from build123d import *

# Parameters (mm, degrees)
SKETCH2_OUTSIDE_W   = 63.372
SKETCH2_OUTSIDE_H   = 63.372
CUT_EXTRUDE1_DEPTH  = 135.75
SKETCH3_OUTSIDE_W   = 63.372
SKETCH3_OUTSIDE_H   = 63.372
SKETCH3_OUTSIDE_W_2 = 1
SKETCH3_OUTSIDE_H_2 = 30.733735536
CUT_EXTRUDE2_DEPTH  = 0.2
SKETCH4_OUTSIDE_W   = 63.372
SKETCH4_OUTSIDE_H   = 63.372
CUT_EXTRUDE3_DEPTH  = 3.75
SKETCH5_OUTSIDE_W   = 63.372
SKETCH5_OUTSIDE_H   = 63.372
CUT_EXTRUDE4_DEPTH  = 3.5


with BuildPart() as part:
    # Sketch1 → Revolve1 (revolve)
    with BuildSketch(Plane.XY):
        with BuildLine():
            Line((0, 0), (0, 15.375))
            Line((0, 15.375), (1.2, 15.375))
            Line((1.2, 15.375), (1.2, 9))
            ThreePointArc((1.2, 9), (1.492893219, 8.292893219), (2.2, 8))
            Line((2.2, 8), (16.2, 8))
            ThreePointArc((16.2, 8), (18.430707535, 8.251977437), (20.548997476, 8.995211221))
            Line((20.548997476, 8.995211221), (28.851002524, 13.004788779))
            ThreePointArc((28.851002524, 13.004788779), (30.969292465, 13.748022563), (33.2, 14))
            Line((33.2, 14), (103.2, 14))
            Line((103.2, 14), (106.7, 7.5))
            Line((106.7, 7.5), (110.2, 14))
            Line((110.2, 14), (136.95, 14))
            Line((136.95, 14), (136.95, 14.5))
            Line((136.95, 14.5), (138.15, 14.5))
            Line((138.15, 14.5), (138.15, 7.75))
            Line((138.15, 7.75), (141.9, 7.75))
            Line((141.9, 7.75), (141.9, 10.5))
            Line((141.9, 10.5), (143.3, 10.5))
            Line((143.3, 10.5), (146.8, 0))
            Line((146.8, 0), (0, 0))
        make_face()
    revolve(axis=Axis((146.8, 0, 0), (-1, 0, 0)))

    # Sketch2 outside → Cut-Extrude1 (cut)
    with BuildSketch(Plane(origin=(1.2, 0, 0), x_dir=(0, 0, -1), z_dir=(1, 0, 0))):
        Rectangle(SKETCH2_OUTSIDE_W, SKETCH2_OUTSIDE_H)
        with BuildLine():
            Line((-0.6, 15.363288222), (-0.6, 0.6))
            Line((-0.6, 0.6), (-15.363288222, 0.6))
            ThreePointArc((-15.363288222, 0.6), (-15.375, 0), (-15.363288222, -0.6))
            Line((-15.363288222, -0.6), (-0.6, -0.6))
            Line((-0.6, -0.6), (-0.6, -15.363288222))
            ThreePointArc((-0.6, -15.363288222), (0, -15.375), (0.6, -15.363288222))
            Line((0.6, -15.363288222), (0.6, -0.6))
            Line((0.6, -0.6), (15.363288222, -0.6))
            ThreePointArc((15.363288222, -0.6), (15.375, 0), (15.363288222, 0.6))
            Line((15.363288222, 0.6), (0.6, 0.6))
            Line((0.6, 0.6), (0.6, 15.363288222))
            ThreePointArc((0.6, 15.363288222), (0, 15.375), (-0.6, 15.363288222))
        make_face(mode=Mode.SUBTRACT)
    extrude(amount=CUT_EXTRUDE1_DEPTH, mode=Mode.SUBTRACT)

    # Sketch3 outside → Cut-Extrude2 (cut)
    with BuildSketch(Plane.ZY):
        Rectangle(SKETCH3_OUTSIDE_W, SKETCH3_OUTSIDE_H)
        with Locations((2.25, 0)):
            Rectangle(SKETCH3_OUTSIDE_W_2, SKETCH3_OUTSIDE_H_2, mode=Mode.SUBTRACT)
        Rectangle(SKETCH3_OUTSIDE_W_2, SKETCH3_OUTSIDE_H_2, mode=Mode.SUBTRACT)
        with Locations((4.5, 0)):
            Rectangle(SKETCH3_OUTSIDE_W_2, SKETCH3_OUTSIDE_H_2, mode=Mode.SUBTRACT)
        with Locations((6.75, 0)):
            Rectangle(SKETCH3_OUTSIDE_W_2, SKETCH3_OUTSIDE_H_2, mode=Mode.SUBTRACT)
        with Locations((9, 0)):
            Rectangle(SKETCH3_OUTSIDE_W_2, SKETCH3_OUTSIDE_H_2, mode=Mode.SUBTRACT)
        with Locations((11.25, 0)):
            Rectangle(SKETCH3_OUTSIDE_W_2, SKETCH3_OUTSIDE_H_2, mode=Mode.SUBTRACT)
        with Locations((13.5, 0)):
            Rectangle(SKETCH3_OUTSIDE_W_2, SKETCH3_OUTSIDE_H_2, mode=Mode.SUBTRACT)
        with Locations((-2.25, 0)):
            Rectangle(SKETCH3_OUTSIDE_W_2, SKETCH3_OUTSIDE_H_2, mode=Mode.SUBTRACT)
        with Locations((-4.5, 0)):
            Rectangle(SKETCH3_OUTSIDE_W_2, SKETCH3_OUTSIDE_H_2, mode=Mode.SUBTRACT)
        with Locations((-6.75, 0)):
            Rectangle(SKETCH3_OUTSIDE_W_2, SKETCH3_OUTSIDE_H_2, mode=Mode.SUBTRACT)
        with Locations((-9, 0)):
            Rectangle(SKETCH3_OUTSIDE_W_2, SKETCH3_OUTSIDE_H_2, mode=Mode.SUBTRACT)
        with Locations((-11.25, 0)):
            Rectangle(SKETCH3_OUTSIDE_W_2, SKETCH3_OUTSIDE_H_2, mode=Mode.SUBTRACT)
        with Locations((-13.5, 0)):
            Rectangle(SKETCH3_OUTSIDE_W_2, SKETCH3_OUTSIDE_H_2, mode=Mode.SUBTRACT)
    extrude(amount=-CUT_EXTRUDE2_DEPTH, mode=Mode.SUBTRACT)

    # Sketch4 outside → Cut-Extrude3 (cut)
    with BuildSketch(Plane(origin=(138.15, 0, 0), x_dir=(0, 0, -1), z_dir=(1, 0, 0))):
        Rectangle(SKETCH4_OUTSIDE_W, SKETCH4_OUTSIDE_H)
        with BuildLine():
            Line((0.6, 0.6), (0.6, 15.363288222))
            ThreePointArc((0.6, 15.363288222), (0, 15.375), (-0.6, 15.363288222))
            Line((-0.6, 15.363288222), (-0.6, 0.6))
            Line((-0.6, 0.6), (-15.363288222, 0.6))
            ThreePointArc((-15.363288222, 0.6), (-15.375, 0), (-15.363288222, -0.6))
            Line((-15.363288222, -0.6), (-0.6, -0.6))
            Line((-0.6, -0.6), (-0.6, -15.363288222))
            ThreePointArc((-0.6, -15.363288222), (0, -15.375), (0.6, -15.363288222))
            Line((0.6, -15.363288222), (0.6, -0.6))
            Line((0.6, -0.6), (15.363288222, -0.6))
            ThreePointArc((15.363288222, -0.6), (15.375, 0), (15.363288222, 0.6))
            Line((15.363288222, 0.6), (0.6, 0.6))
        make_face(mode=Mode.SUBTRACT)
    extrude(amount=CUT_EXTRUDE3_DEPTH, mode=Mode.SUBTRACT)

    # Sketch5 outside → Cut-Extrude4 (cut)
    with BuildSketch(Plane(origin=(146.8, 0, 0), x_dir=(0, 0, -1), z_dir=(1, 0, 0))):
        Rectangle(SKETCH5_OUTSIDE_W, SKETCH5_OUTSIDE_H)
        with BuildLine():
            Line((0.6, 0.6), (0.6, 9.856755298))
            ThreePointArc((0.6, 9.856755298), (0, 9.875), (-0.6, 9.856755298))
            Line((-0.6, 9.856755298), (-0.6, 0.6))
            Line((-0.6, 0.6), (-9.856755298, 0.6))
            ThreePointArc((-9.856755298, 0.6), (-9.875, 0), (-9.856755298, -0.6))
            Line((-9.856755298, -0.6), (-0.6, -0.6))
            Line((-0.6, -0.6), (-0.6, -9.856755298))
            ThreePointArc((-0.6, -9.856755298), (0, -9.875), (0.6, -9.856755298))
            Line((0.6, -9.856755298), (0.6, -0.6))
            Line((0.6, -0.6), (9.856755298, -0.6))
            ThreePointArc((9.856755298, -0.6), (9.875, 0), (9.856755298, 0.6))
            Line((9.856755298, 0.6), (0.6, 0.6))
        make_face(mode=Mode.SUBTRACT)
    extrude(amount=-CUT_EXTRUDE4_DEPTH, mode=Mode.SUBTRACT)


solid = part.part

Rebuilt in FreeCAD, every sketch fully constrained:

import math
import FreeCAD as App
import Part
import Sketcher
Q = App.Units.Quantity

doc = App.newDocument("Part")
body = doc.addObject("PartDesign::Body", "Body")

# Sketch on XY plane
sketch1 = doc.addObject("Sketcher::SketchObject", "Sketch")
body.addObject(sketch1)
sketch1.AttachmentSupport = (doc.XY_Plane, [""])
sketch1.MapMode = "FlatFace"
sketch1.addGeometry([
    Part.LineSegment(App.Vector(0, 15.4, 0), App.Vector(0, 0, 0)),  # 0
    Part.LineSegment(App.Vector(0, 0, 0), App.Vector(146.8, 0, 0)),  # 1
    Part.LineSegment(App.Vector(146.8, 0, 0), App.Vector(143.3, 10.5, 0)),  # 2
    Part.LineSegment(App.Vector(143.3, 10.5, 0), App.Vector(141.9, 10.5, 0)),  # 3
    Part.LineSegment(App.Vector(141.9, 10.5, 0), App.Vector(141.9, 7.8, 0)),  # 4
    Part.LineSegment(App.Vector(141.9, 7.8, 0), App.Vector(138.2, 7.8, 0)),  # 5
    Part.LineSegment(App.Vector(138.2, 7.8, 0), App.Vector(138.2, 14.5, 0)),  # 6
    Part.LineSegment(App.Vector(138.2, 14.5, 0), App.Vector(136.9, 14.5, 0)),  # 7
    Part.LineSegment(App.Vector(136.9, 14.5, 0), App.Vector(136.9, 14, 0)),  # 8
    Part.LineSegment(App.Vector(136.9, 14, 0), App.Vector(110.2, 14, 0)),  # 9
    Part.LineSegment(App.Vector(110.2, 14, 0), App.Vector(106.7, 7.5, 0)),  # 10
    Part.LineSegment(App.Vector(106.7, 7.5, 0), App.Vector(103.2, 14, 0)),  # 11
    Part.LineSegment(App.Vector(103.2, 14, 0), App.Vector(33.2, 14, 0)),  # 12
    Part.ArcOfCircle(Part.Circle(App.Vector(33.2, 4, 0), App.Vector(0, 0, 1), 10), math.radians(90), math.radians(116)),  # 13
    Part.LineSegment(App.Vector(28.9, 13, 0), App.Vector(20.5, 9, 0)),  # 14
    Part.ArcOfCircle(Part.Circle(App.Vector(16.2, 18, 0), App.Vector(0, 0, 1), 10), math.radians(-90), math.radians(-64)),  # 15
    Part.LineSegment(App.Vector(16.2, 8, 0), App.Vector(2.2, 8, 0)),  # 16
    Part.ArcOfCircle(Part.Circle(App.Vector(2.2, 9, 0), App.Vector(0, 0, 1), 1), math.radians(-180), math.radians(-90)),  # 17
    Part.LineSegment(App.Vector(1.2, 9, 0), App.Vector(1.2, 15.4, 0)),  # 18
    Part.LineSegment(App.Vector(1.2, 15.4, 0), App.Vector(0, 15.4, 0)),  # 19
], False)
sketch1.addConstraint([
    Sketcher.Constraint("Coincident", 0, 2, 1, 1),
    Sketcher.Constraint("Coincident", 1, 2, 2, 1),
    Sketcher.Constraint("Coincident", 2, 2, 3, 1),
    Sketcher.Constraint("Coincident", 3, 2, 4, 1),
    Sketcher.Constraint("Coincident", 4, 2, 5, 1),
    Sketcher.Constraint("Coincident", 5, 2, 6, 1),
    Sketcher.Constraint("Coincident", 6, 2, 7, 1),
    Sketcher.Constraint("Coincident", 7, 2, 8, 1),
    Sketcher.Constraint("Coincident", 8, 2, 9, 1),
    Sketcher.Constraint("Coincident", 9, 2, 10, 1),
    Sketcher.Constraint("Coincident", 10, 2, 11, 1),
    Sketcher.Constraint("Coincident", 11, 2, 12, 1),
    Sketcher.Constraint("Tangent", 12, 2, 13, 1),
    Sketcher.Constraint("Tangent", 13, 2, 14, 1),
    Sketcher.Constraint("Tangent", 14, 2, 15, 2),
    Sketcher.Constraint("Tangent", 15, 1, 16, 1),
    Sketcher.Constraint("Tangent", 16, 2, 17, 2),
    Sketcher.Constraint("Tangent", 17, 1, 18, 1),
    Sketcher.Constraint("Coincident", 18, 2, 19, 1),
    Sketcher.Constraint("Coincident", 19, 2, 0, 1),
    Sketcher.Constraint("Vertical", 0),
    Sketcher.Constraint("Horizontal", 1),
    Sketcher.Constraint("Horizontal", 3),
    Sketcher.Constraint("Vertical", 4),
    Sketcher.Constraint("Horizontal", 5),
    Sketcher.Constraint("Vertical", 6),
    Sketcher.Constraint("Horizontal", 7),
    Sketcher.Constraint("Vertical", 8),
    Sketcher.Constraint("Horizontal", 9),
    Sketcher.Constraint("Horizontal", 12),
    Sketcher.Constraint("Horizontal", 16),
    Sketcher.Constraint("Vertical", 18),
    Sketcher.Constraint("Horizontal", 19),
    Sketcher.Constraint("Coincident", 0, 2, -1, 1),
    Sketcher.Constraint("Equal", 13, 15),
    Sketcher.Constraint("Horizontal", 9, 2, 11, 2),
    Sketcher.Constraint("Equal", 7, 19),
    Sketcher.Constraint("Equal", 10, 11),
    Sketcher.Constraint("Radius", 13, Q("10 mm")),
    Sketcher.Constraint("Radius", 17, Q("1 mm")),
    Sketcher.Constraint("DistanceX", 12, 2, 12, 1, Q("70 mm")),
    Sketcher.Constraint("DistanceX", 16, 2, 16, 1, Q("14 mm")),
    Sketcher.Constraint("DistanceX", 1, 1, 1, 2, Q("146.8 mm")),
    Sketcher.Constraint("DistanceX", 3, 2, 3, 1, Q("1.4 mm")),
    Sketcher.Constraint("DistanceX", 7, 2, 7, 1, Q("1.2 mm")),
    Sketcher.Constraint("DistanceY", 8, 2, 8, 1, Q("0.5 mm")),
    Sketcher.Constraint("DistanceY", -1, 1, 13, 3, Q("4 mm")),
    Sketcher.Constraint("DistanceY", -1, 1, 15, 3, Q("18 mm")),
    Sketcher.Constraint("DistanceX", 15, 3, 13, 3, Q("17 mm")),
    Sketcher.Constraint("DistanceY", 3, 2, 6, 2, Q("4 mm")),
    Sketcher.Constraint("DistanceY", 10, 2, 7, 2, Q("7 mm")),
    Sketcher.Constraint("DistanceX", 11, 2, 9, 2, Q("7 mm")),
    Sketcher.Constraint("DistanceX", 5, 2, 5, 1, Q("3.75 mm")),
    Sketcher.Constraint("DistanceX", 9, 2, 9, 1, Q("26.75 mm")),
    Sketcher.Constraint("DistanceY", 4, 2, 4, 1, Q("2.75 mm")),
    Sketcher.Constraint("DistanceY", 0, 2, 0, 1, Q("15.375 mm")),
])
revolution = doc.addObject("PartDesign::Revolution", "Revolution")
body.addObject(revolution)
revolution.Profile = sketch1
revolution.ReferenceAxis = (sketch1, ["H_Axis"])
revolution.Angle = 360

# Sketch on YZ plane
sketch2 = doc.addObject("Sketcher::SketchObject", "Sketch001")
body.addObject(sketch2)
sketch2.AttachmentSupport = (doc.YZ_Plane, [""])
sketch2.MapMode = "FlatFace"
sketch2.AttachmentOffset = App.Placement(App.Vector(0, 0, 1.2), App.Rotation())
sketch2.addGeometry([
    Part.LineSegment(App.Vector(31.7, 31.7, 0), App.Vector(-31.7, 31.7, 0)),  # 0
    Part.LineSegment(App.Vector(-31.7, 31.7, 0), App.Vector(-31.7, -31.7, 0)),  # 1
    Part.LineSegment(App.Vector(-31.7, -31.7, 0), App.Vector(31.7, -31.7, 0)),  # 2
    Part.LineSegment(App.Vector(31.7, -31.7, 0), App.Vector(31.7, 31.7, 0)),  # 3
    Part.LineSegment(App.Vector(0.6, 0.6, 0), App.Vector(15.4, 0.6, 0)),  # 4
    Part.ArcOfCircle(Part.Circle(App.Vector(0, 0, 0), App.Vector(0, 0, 1), 15.4), math.radians(-2.24), math.radians(2.24)),  # 5
    Part.LineSegment(App.Vector(15.4, -0.6, 0), App.Vector(0.6, -0.6, 0)),  # 6
    Part.LineSegment(App.Vector(0.6, -0.6, 0), App.Vector(0.6, -15.4, 0)),  # 7
    Part.ArcOfCircle(Part.Circle(App.Vector(0, 0, 0), App.Vector(0, 0, 1), 15.4), math.radians(-92.24), math.radians(-87.76)),  # 8
    Part.LineSegment(App.Vector(-0.6, -15.4, 0), App.Vector(-0.6, -0.6, 0)),  # 9
    Part.LineSegment(App.Vector(-0.6, -0.6, 0), App.Vector(-15.4, -0.6, 0)),  # 10
    Part.ArcOfCircle(Part.Circle(App.Vector(0, 0, 0), App.Vector(0, 0, 1), 15.4), math.radians(177.76), math.radians(182.24)),  # 11
    Part.LineSegment(App.Vector(-15.4, 0.6, 0), App.Vector(-0.6, 0.6, 0)),  # 12
    Part.LineSegment(App.Vector(-0.6, 0.6, 0), App.Vector(-0.6, 15.4, 0)),  # 13
    Part.ArcOfCircle(Part.Circle(App.Vector(0, 0, 0), App.Vector(0, 0, 1), 15.4), math.radians(87.76), math.radians(92.24)),  # 14
    Part.LineSegment(App.Vector(0.6, 15.4, 0), App.Vector(0.6, 0.6, 0)),  # 15
], False)
sketch2.addConstraint([
    Sketcher.Constraint("Coincident", 0, 2, 1, 1),
    Sketcher.Constraint("Coincident", 1, 2, 2, 1),
    Sketcher.Constraint("Coincident", 2, 2, 3, 1),
    Sketcher.Constraint("Coincident", 3, 2, 0, 1),
    Sketcher.Constraint("Coincident", 4, 2, 5, 2),
    Sketcher.Constraint("Coincident", 5, 1, 6, 1),
    Sketcher.Constraint("Coincident", 6, 2, 7, 1),
    Sketcher.Constraint("Coincident", 7, 2, 8, 2),
    Sketcher.Constraint("Coincident", 8, 1, 9, 1),
    Sketcher.Constraint("Coincident", 9, 2, 10, 1),
    Sketcher.Constraint("Coincident", 10, 2, 11, 2),
    Sketcher.Constraint("Coincident", 11, 1, 12, 1),
    Sketcher.Constraint("Coincident", 12, 2, 13, 1),
    Sketcher.Constraint("Coincident", 13, 2, 14, 2),
    Sketcher.Constraint("Coincident", 14, 1, 15, 1),
    Sketcher.Constraint("Coincident", 15, 2, 4, 1),
    Sketcher.Constraint("Horizontal", 0),
    Sketcher.Constraint("Vertical", 1),
    Sketcher.Constraint("Horizontal", 2),
    Sketcher.Constraint("Vertical", 3),
    Sketcher.Constraint("Horizontal", 4),
    Sketcher.Constraint("Horizontal", 6),
    Sketcher.Constraint("Vertical", 7),
    Sketcher.Constraint("Vertical", 9),
    Sketcher.Constraint("Horizontal", 10),
    Sketcher.Constraint("Horizontal", 12),
    Sketcher.Constraint("Vertical", 13),
    Sketcher.Constraint("Vertical", 15),
    Sketcher.Constraint("Coincident", 5, 3, -1, 1),
    Sketcher.Constraint("Coincident", 8, 3, -1, 1),
    Sketcher.Constraint("Coincident", 11, 3, -1, 1),
    Sketcher.Constraint("Coincident", 14, 3, -1, 1),
    Sketcher.Constraint("Equal", 5, 8),
    Sketcher.Constraint("Equal", 8, 11),
    Sketcher.Constraint("Equal", 11, 14),
    Sketcher.Constraint("Symmetric", 0, 2, 2, 2, -1, 1),
    Sketcher.Constraint("Symmetric", 6, 2, 12, 2, -1, 1),
    Sketcher.Constraint("Symmetric", 9, 2, 15, 2, -1, 1),
    Sketcher.Constraint("Symmetric", 6, 2, 9, 2, -2),
    Sketcher.Constraint("Equal", 2, 1),
    Sketcher.Constraint("Equal", 12, 7),
    Sketcher.Constraint("Radius", 5, Q("15.375 mm")),
    Sketcher.Constraint("DistanceY", -1, 1, 4, 2, Q("0.6 mm")),
    Sketcher.Constraint("DistanceX", 0, 2, 0, 1, Q("63.372 mm")),
])
pocket1 = doc.addObject("PartDesign::Pocket", "Pocket")
body.addObject(pocket1)
pocket1.Profile = sketch2
pocket1.Length = 135.75
pocket1.Reversed = True

# Sketch on YZ plane
sketch3 = doc.addObject("Sketcher::SketchObject", "Sketch002")
body.addObject(sketch3)
sketch3.AttachmentSupport = (doc.YZ_Plane, [""])
sketch3.MapMode = "FlatFace"
sketch3.addGeometry([
    Part.LineSegment(App.Vector(31.7, -31.7, 0), App.Vector(-31.7, -31.7, 0)),  # 0
    Part.LineSegment(App.Vector(-31.7, -31.7, 0), App.Vector(-31.7, 31.7, 0)),  # 1
    Part.LineSegment(App.Vector(-31.7, 31.7, 0), App.Vector(31.7, 31.7, 0)),  # 2
    Part.LineSegment(App.Vector(31.7, 31.7, 0), App.Vector(31.7, -31.7, 0)),  # 3
    Part.LineSegment(App.Vector(-15.4, -13, 0), App.Vector(-15.4, -14, 0)),  # 4
    Part.LineSegment(App.Vector(-15.4, -14, 0), App.Vector(15.4, -14, 0)),  # 5
    Part.LineSegment(App.Vector(15.4, -14, 0), App.Vector(15.4, -13, 0)),  # 6
    Part.LineSegment(App.Vector(15.4, -13, 0), App.Vector(-15.4, -13, 0)),  # 7
    Part.LineSegment(App.Vector(-15.4, -10.8, 0), App.Vector(-15.4, -11.8, 0)),  # 8
    Part.LineSegment(App.Vector(-15.4, -11.8, 0), App.Vector(15.4, -11.8, 0)),  # 9
    Part.LineSegment(App.Vector(15.4, -11.8, 0), App.Vector(15.4, -10.8, 0)),  # 10
    Part.LineSegment(App.Vector(15.4, -10.8, 0), App.Vector(-15.4, -10.8, 0)),  # 11
    Part.LineSegment(App.Vector(-15.4, -8.5, 0), App.Vector(-15.4, -9.5, 0)),  # 12
    Part.LineSegment(App.Vector(-15.4, -9.5, 0), App.Vector(15.4, -9.5, 0)),  # 13
    Part.LineSegment(App.Vector(15.4, -9.5, 0), App.Vector(15.4, -8.5, 0)),  # 14
    Part.LineSegment(App.Vector(15.4, -8.5, 0), App.Vector(-15.4, -8.5, 0)),  # 15
    Part.LineSegment(App.Vector(-15.4, -6.2, 0), App.Vector(-15.4, -7.2, 0)),  # 16
    Part.LineSegment(App.Vector(-15.4, -7.2, 0), App.Vector(15.4, -7.2, 0)),  # 17
    Part.LineSegment(App.Vector(15.4, -7.2, 0), App.Vector(15.4, -6.2, 0)),  # 18
    Part.LineSegment(App.Vector(15.4, -6.2, 0), App.Vector(-15.4, -6.2, 0)),  # 19
    Part.LineSegment(App.Vector(-15.4, -4, 0), App.Vector(-15.4, -5, 0)),  # 20
    Part.LineSegment(App.Vector(-15.4, -5, 0), App.Vector(15.4, -5, 0)),  # 21
    Part.LineSegment(App.Vector(15.4, -5, 0), App.Vector(15.4, -4, 0)),  # 22
    Part.LineSegment(App.Vector(15.4, -4, 0), App.Vector(-15.4, -4, 0)),  # 23
    Part.LineSegment(App.Vector(-15.4, -1.8, 0), App.Vector(-15.4, -2.8, 0)),  # 24
    Part.LineSegment(App.Vector(-15.4, -2.8, 0), App.Vector(15.4, -2.8, 0)),  # 25
    Part.LineSegment(App.Vector(15.4, -2.8, 0), App.Vector(15.4, -1.8, 0)),  # 26
    Part.LineSegment(App.Vector(15.4, -1.8, 0), App.Vector(-15.4, -1.8, 0)),  # 27
    Part.LineSegment(App.Vector(-15.4, 0.5, 0), App.Vector(-15.4, -0.5, 0)),  # 28
    Part.LineSegment(App.Vector(-15.4, -0.5, 0), App.Vector(15.4, -0.5, 0)),  # 29
    Part.LineSegment(App.Vector(15.4, -0.5, 0), App.Vector(15.4, 0.5, 0)),  # 30
    Part.LineSegment(App.Vector(15.4, 0.5, 0), App.Vector(-15.4, 0.5, 0)),  # 31
    Part.LineSegment(App.Vector(-15.4, 2.8, 0), App.Vector(-15.4, 1.8, 0)),  # 32
    Part.LineSegment(App.Vector(-15.4, 1.8, 0), App.Vector(15.4, 1.8, 0)),  # 33
    Part.LineSegment(App.Vector(15.4, 1.8, 0), App.Vector(15.4, 2.8, 0)),  # 34
    Part.LineSegment(App.Vector(15.4, 2.8, 0), App.Vector(-15.4, 2.8, 0)),  # 35
    Part.LineSegment(App.Vector(-15.4, 5, 0), App.Vector(-15.4, 4, 0)),  # 36
    Part.LineSegment(App.Vector(-15.4, 4, 0), App.Vector(15.4, 4, 0)),  # 37
    Part.LineSegment(App.Vector(15.4, 4, 0), App.Vector(15.4, 5, 0)),  # 38
    Part.LineSegment(App.Vector(15.4, 5, 0), App.Vector(-15.4, 5, 0)),  # 39
    Part.LineSegment(App.Vector(-15.4, 7.2, 0), App.Vector(-15.4, 6.2, 0)),  # 40
    Part.LineSegment(App.Vector(-15.4, 6.2, 0), App.Vector(15.4, 6.2, 0)),  # 41
    Part.LineSegment(App.Vector(15.4, 6.2, 0), App.Vector(15.4, 7.2, 0)),  # 42
    Part.LineSegment(App.Vector(15.4, 7.2, 0), App.Vector(-15.4, 7.2, 0)),  # 43
    Part.LineSegment(App.Vector(-15.4, 9.5, 0), App.Vector(-15.4, 8.5, 0)),  # 44
    Part.LineSegment(App.Vector(-15.4, 8.5, 0), App.Vector(15.4, 8.5, 0)),  # 45
    Part.LineSegment(App.Vector(15.4, 8.5, 0), App.Vector(15.4, 9.5, 0)),  # 46
    Part.LineSegment(App.Vector(15.4, 9.5, 0), App.Vector(-15.4, 9.5, 0)),  # 47
    Part.LineSegment(App.Vector(-15.4, 11.8, 0), App.Vector(-15.4, 10.8, 0)),  # 48
    Part.LineSegment(App.Vector(-15.4, 10.8, 0), App.Vector(15.4, 10.8, 0)),  # 49
    Part.LineSegment(App.Vector(15.4, 10.8, 0), App.Vector(15.4, 11.8, 0)),  # 50
    Part.LineSegment(App.Vector(15.4, 11.8, 0), App.Vector(-15.4, 11.8, 0)),  # 51
    Part.LineSegment(App.Vector(-15.4, 14, 0), App.Vector(-15.4, 13, 0)),  # 52
    Part.LineSegment(App.Vector(-15.4, 13, 0), App.Vector(15.4, 13, 0)),  # 53
    Part.LineSegment(App.Vector(15.4, 13, 0), App.Vector(15.4, 14, 0)),  # 54
    Part.LineSegment(App.Vector(15.4, 14, 0), App.Vector(-15.4, 14, 0)),  # 55
], False)
sketch3.addConstraint([
    Sketcher.Constraint("Coincident", 0, 2, 1, 1),
    Sketcher.Constraint("Coincident", 1, 2, 2, 1),
    Sketcher.Constraint("Coincident", 2, 2, 3, 1),
    Sketcher.Constraint("Coincident", 3, 2, 0, 1),
    Sketcher.Constraint("Coincident", 4, 2, 5, 1),
    Sketcher.Constraint("Coincident", 5, 2, 6, 1),
    Sketcher.Constraint("Coincident", 6, 2, 7, 1),
    Sketcher.Constraint("Coincident", 7, 2, 4, 1),
    Sketcher.Constraint("Coincident", 8, 2, 9, 1),
    Sketcher.Constraint("Coincident", 9, 2, 10, 1),
    Sketcher.Constraint("Coincident", 10, 2, 11, 1),
    Sketcher.Constraint("Coincident", 11, 2, 8, 1),
    Sketcher.Constraint("Coincident", 12, 2, 13, 1),
    Sketcher.Constraint("Coincident", 13, 2, 14, 1),
    Sketcher.Constraint("Coincident", 14, 2, 15, 1),
    Sketcher.Constraint("Coincident", 15, 2, 12, 1),
    Sketcher.Constraint("Coincident", 16, 2, 17, 1),
    Sketcher.Constraint("Coincident", 17, 2, 18, 1),
    Sketcher.Constraint("Coincident", 18, 2, 19, 1),
    Sketcher.Constraint("Coincident", 19, 2, 16, 1),
    Sketcher.Constraint("Coincident", 20, 2, 21, 1),
    Sketcher.Constraint("Coincident", 21, 2, 22, 1),
    Sketcher.Constraint("Coincident", 22, 2, 23, 1),
    Sketcher.Constraint("Coincident", 23, 2, 20, 1),
    Sketcher.Constraint("Coincident", 24, 2, 25, 1),
    Sketcher.Constraint("Coincident", 25, 2, 26, 1),
    Sketcher.Constraint("Coincident", 26, 2, 27, 1),
    Sketcher.Constraint("Coincident", 27, 2, 24, 1),
    Sketcher.Constraint("Coincident", 28, 2, 29, 1),
    Sketcher.Constraint("Coincident", 29, 2, 30, 1),
    Sketcher.Constraint("Coincident", 30, 2, 31, 1),
    Sketcher.Constraint("Coincident", 31, 2, 28, 1),
    Sketcher.Constraint("Coincident", 32, 2, 33, 1),
    Sketcher.Constraint("Coincident", 33, 2, 34, 1),
    Sketcher.Constraint("Coincident", 34, 2, 35, 1),
    Sketcher.Constraint("Coincident", 35, 2, 32, 1),
    Sketcher.Constraint("Coincident", 36, 2, 37, 1),
    Sketcher.Constraint("Coincident", 37, 2, 38, 1),
    Sketcher.Constraint("Coincident", 38, 2, 39, 1),
    Sketcher.Constraint("Coincident", 39, 2, 36, 1),
    Sketcher.Constraint("Coincident", 40, 2, 41, 1),
    Sketcher.Constraint("Coincident", 41, 2, 42, 1),
    Sketcher.Constraint("Coincident", 42, 2, 43, 1),
    Sketcher.Constraint("Coincident", 43, 2, 40, 1),
    Sketcher.Constraint("Coincident", 44, 2, 45, 1),
    Sketcher.Constraint("Coincident", 45, 2, 46, 1),
    Sketcher.Constraint("Coincident", 46, 2, 47, 1),
    Sketcher.Constraint("Coincident", 47, 2, 44, 1),
    Sketcher.Constraint("Coincident", 48, 2, 49, 1),
    Sketcher.Constraint("Coincident", 49, 2, 50, 1),
    Sketcher.Constraint("Coincident", 50, 2, 51, 1),
    Sketcher.Constraint("Coincident", 51, 2, 48, 1),
    Sketcher.Constraint("Coincident", 52, 2, 53, 1),
    Sketcher.Constraint("Coincident", 53, 2, 54, 1),
    Sketcher.Constraint("Coincident", 54, 2, 55, 1),
    Sketcher.Constraint("Coincident", 55, 2, 52, 1),
    Sketcher.Constraint("Horizontal", 0),
    Sketcher.Constraint("Vertical", 1),
    Sketcher.Constraint("Horizontal", 2),
    Sketcher.Constraint("Vertical", 3),
    Sketcher.Constraint("Vertical", 4),
    Sketcher.Constraint("Horizontal", 5),
    Sketcher.Constraint("Vertical", 6),
    Sketcher.Constraint("Horizontal", 7),
    Sketcher.Constraint("Vertical", 8),
    Sketcher.Constraint("Horizontal", 9),
    Sketcher.Constraint("Vertical", 10),
    Sketcher.Constraint("Horizontal", 11),
    Sketcher.Constraint("Vertical", 12),
    Sketcher.Constraint("Horizontal", 13),
    Sketcher.Constraint("Vertical", 14),
    Sketcher.Constraint("Horizontal", 15),
    Sketcher.Constraint("Vertical", 16),
    Sketcher.Constraint("Horizontal", 17),
    Sketcher.Constraint("Vertical", 18),
    Sketcher.Constraint("Horizontal", 19),
    Sketcher.Constraint("Vertical", 20),
    Sketcher.Constraint("Horizontal", 21),
    Sketcher.Constraint("Vertical", 22),
    Sketcher.Constraint("Horizontal", 23),
    Sketcher.Constraint("Vertical", 24),
    Sketcher.Constraint("Horizontal", 25),
    Sketcher.Constraint("Vertical", 26),
    Sketcher.Constraint("Horizontal", 27),
    Sketcher.Constraint("Vertical", 28),
    Sketcher.Constraint("Horizontal", 29),
    Sketcher.Constraint("Vertical", 30),
    Sketcher.Constraint("Horizontal", 31),
    Sketcher.Constraint("Vertical", 32),
    Sketcher.Constraint("Horizontal", 33),
    Sketcher.Constraint("Vertical", 34),
    Sketcher.Constraint("Horizontal", 35),
    Sketcher.Constraint("Vertical", 36),
    Sketcher.Constraint("Horizontal", 37),
    Sketcher.Constraint("Vertical", 38),
    Sketcher.Constraint("Horizontal", 39),
    Sketcher.Constraint("Vertical", 40),
    Sketcher.Constraint("Horizontal", 41),
    Sketcher.Constraint("Vertical", 42),
    Sketcher.Constraint("Horizontal", 43),
    Sketcher.Constraint("Vertical", 44),
    Sketcher.Constraint("Horizontal", 45),
    Sketcher.Constraint("Vertical", 46),
    Sketcher.Constraint("Horizontal", 47),
    Sketcher.Constraint("Vertical", 48),
    Sketcher.Constraint("Horizontal", 49),
    Sketcher.Constraint("Vertical", 50),
    Sketcher.Constraint("Horizontal", 51),
    Sketcher.Constraint("Vertical", 52),
    Sketcher.Constraint("Horizontal", 53),
    Sketcher.Constraint("Vertical", 54),
    Sketcher.Constraint("Horizontal", 55),
    Sketcher.Constraint("Symmetric", 0, 2, 2, 2, -1, 1),
    Sketcher.Constraint("Symmetric", 28, 2, 30, 2, -1, 1),
    Sketcher.Constraint("Symmetric", 26, 2, 32, 2, -1, 1),
    Sketcher.Constraint("Symmetric", 24, 2, 34, 2, -1, 1),
    Sketcher.Constraint("Symmetric", 22, 2, 36, 2, -1, 1),
    Sketcher.Constraint("Symmetric", 20, 2, 38, 2, -1, 1),
    Sketcher.Constraint("Symmetric", 18, 2, 40, 2, -1, 1),
    Sketcher.Constraint("Symmetric", 16, 2, 42, 2, -1, 1),
    Sketcher.Constraint("Symmetric", 14, 2, 44, 2, -1, 1),
    Sketcher.Constraint("Symmetric", 12, 2, 46, 2, -1, 1),
    Sketcher.Constraint("Symmetric", 10, 2, 48, 2, -1, 1),
    Sketcher.Constraint("Symmetric", 8, 2, 50, 2, -1, 1),
    Sketcher.Constraint("Symmetric", 6, 2, 52, 2, -1, 1),
    Sketcher.Constraint("Symmetric", 4, 2, 54, 2, -1, 1),
    Sketcher.Constraint("Vertical", 7, 2, 8, 2),
    Sketcher.Constraint("Vertical", 6, 2, 9, 2),
    Sketcher.Constraint("Vertical", 11, 2, 12, 2),
    Sketcher.Constraint("Vertical", 10, 2, 13, 2),
    Sketcher.Constraint("Vertical", 15, 2, 16, 2),
    Sketcher.Constraint("Vertical", 14, 2, 17, 2),
    Sketcher.Constraint("Vertical", 19, 2, 20, 2),
    Sketcher.Constraint("Vertical", 18, 2, 21, 2),
    Sketcher.Constraint("Vertical", 23, 2, 24, 2),
    Sketcher.Constraint("Vertical", 22, 2, 25, 2),
    Sketcher.Constraint("Vertical", 27, 2, 28, 2),
    Sketcher.Constraint("Vertical", 26, 2, 29, 2),
    Sketcher.Constraint("Equal", 2, 1),
    Sketcher.Constraint("Equal", 6, 8),
    Sketcher.Constraint("Equal", 10, 12),
    Sketcher.Constraint("Equal", 14, 16),
    Sketcher.Constraint("Equal", 18, 20),
    Sketcher.Constraint("Equal", 22, 24),
    Sketcher.Constraint("Equal", 26, 28),
    Sketcher.Constraint("DistanceY", 4, 2, 4, 1, Q("1 mm")),
    Sketcher.Constraint("DistanceY", 4, 2, -1, 1, Q("14 mm")),
    Sketcher.Constraint("DistanceY", 20, 2, -1, 1, Q("5 mm")),
    Sketcher.Constraint("DistanceY", 12, 2, -1, 1, Q("9.5 mm")),
    Sketcher.Constraint("DistanceY", 11, 2, 16, 2, Q("3.5 mm")),
    Sketcher.Constraint("DistanceY", 19, 2, 24, 2, Q("3.5 mm")),
    Sketcher.Constraint("DistanceY", 27, 2, 32, 2, Q("3.5 mm")),
    Sketcher.Constraint("DistanceX", 0, 2, 0, 1, Q("63.372 mm")),
    Sketcher.Constraint("DistanceX", 5, 1, 5, 2, Q("30.733736 mm")),
])
pocket2 = doc.addObject("PartDesign::Pocket", "Pocket001")
body.addObject(pocket2)
pocket2.Profile = sketch3
pocket2.Length = 0.2
pocket2.Reversed = True

# Sketch on YZ plane
sketch4 = doc.addObject("Sketcher::SketchObject", "Sketch003")
body.addObject(sketch4)
sketch4.AttachmentSupport = (doc.YZ_Plane, [""])
sketch4.MapMode = "FlatFace"
sketch4.AttachmentOffset = App.Placement(App.Vector(0, 0, 138.15), App.Rotation())
sketch4.addGeometry([
    Part.LineSegment(App.Vector(31.7, 31.7, 0), App.Vector(-31.7, 31.7, 0)),  # 0
    Part.LineSegment(App.Vector(-31.7, 31.7, 0), App.Vector(-31.7, -31.7, 0)),  # 1
    Part.LineSegment(App.Vector(-31.7, -31.7, 0), App.Vector(31.7, -31.7, 0)),  # 2
    Part.LineSegment(App.Vector(31.7, -31.7, 0), App.Vector(31.7, 31.7, 0)),  # 3
    Part.LineSegment(App.Vector(15.4, -0.6, 0), App.Vector(0.6, -0.6, 0)),  # 4
    Part.LineSegment(App.Vector(0.6, -0.6, 0), App.Vector(0.6, -15.4, 0)),  # 5
    Part.ArcOfCircle(Part.Circle(App.Vector(0, 0, 0), App.Vector(0, 0, 1), 15.4), math.radians(-92.24), math.radians(-87.76)),  # 6
    Part.LineSegment(App.Vector(-0.6, -15.4, 0), App.Vector(-0.6, -0.6, 0)),  # 7
    Part.LineSegment(App.Vector(-0.6, -0.6, 0), App.Vector(-15.4, -0.6, 0)),  # 8
    Part.ArcOfCircle(Part.Circle(App.Vector(0, 0, 0), App.Vector(0, 0, 1), 15.4), math.radians(177.76), math.radians(182.24)),  # 9
    Part.LineSegment(App.Vector(-15.4, 0.6, 0), App.Vector(-0.6, 0.6, 0)),  # 10
    Part.LineSegment(App.Vector(-0.6, 0.6, 0), App.Vector(-0.6, 15.4, 0)),  # 11
    Part.ArcOfCircle(Part.Circle(App.Vector(0, 0, 0), App.Vector(0, 0, 1), 15.4), math.radians(87.76), math.radians(92.24)),  # 12
    Part.LineSegment(App.Vector(0.6, 15.4, 0), App.Vector(0.6, 0.6, 0)),  # 13
    Part.LineSegment(App.Vector(0.6, 0.6, 0), App.Vector(15.4, 0.6, 0)),  # 14
    Part.ArcOfCircle(Part.Circle(App.Vector(0, 0, 0), App.Vector(0, 0, 1), 15.4), math.radians(-2.24), math.radians(2.24)),  # 15
], False)
sketch4.addConstraint([
    Sketcher.Constraint("Coincident", 0, 2, 1, 1),
    Sketcher.Constraint("Coincident", 1, 2, 2, 1),
    Sketcher.Constraint("Coincident", 2, 2, 3, 1),
    Sketcher.Constraint("Coincident", 3, 2, 0, 1),
    Sketcher.Constraint("Coincident", 4, 2, 5, 1),
    Sketcher.Constraint("Coincident", 5, 2, 6, 2),
    Sketcher.Constraint("Coincident", 6, 1, 7, 1),
    Sketcher.Constraint("Coincident", 7, 2, 8, 1),
    Sketcher.Constraint("Coincident", 8, 2, 9, 2),
    Sketcher.Constraint("Coincident", 9, 1, 10, 1),
    Sketcher.Constraint("Coincident", 10, 2, 11, 1),
    Sketcher.Constraint("Coincident", 11, 2, 12, 2),
    Sketcher.Constraint("Coincident", 12, 1, 13, 1),
    Sketcher.Constraint("Coincident", 13, 2, 14, 1),
    Sketcher.Constraint("Coincident", 14, 2, 15, 2),
    Sketcher.Constraint("Coincident", 15, 1, 4, 1),
    Sketcher.Constraint("Horizontal", 0),
    Sketcher.Constraint("Vertical", 1),
    Sketcher.Constraint("Horizontal", 2),
    Sketcher.Constraint("Vertical", 3),
    Sketcher.Constraint("Horizontal", 4),
    Sketcher.Constraint("Vertical", 5),
    Sketcher.Constraint("Vertical", 7),
    Sketcher.Constraint("Horizontal", 8),
    Sketcher.Constraint("Horizontal", 10),
    Sketcher.Constraint("Vertical", 11),
    Sketcher.Constraint("Vertical", 13),
    Sketcher.Constraint("Horizontal", 14),
    Sketcher.Constraint("Coincident", 6, 3, -1, 1),
    Sketcher.Constraint("Coincident", 9, 3, -1, 1),
    Sketcher.Constraint("Coincident", 12, 3, -1, 1),
    Sketcher.Constraint("Coincident", 15, 3, -1, 1),
    Sketcher.Constraint("Equal", 6, 9),
    Sketcher.Constraint("Equal", 9, 12),
    Sketcher.Constraint("Equal", 12, 15),
    Sketcher.Constraint("Symmetric", 0, 2, 2, 2, -1, 1),
    Sketcher.Constraint("Symmetric", 4, 2, 10, 2, -1, 1),
    Sketcher.Constraint("Symmetric", 7, 2, 13, 2, -1, 1),
    Sketcher.Constraint("Symmetric", 4, 2, 7, 2, -2),
    Sketcher.Constraint("Equal", 2, 1),
    Sketcher.Constraint("Equal", 14, 5),
    Sketcher.Constraint("Radius", 6, Q("15.375 mm")),
    Sketcher.Constraint("DistanceX", -1, 1, 4, 2, Q("0.6 mm")),
    Sketcher.Constraint("DistanceX", 0, 2, 0, 1, Q("63.372 mm")),
])
pocket3 = doc.addObject("PartDesign::Pocket", "Pocket002")
body.addObject(pocket3)
pocket3.Profile = sketch4
pocket3.Length = 3.75
pocket3.Reversed = True

# Sketch on YZ plane
sketch5 = doc.addObject("Sketcher::SketchObject", "Sketch004")
body.addObject(sketch5)
sketch5.AttachmentSupport = (doc.YZ_Plane, [""])
sketch5.MapMode = "FlatFace"
sketch5.AttachmentOffset = App.Placement(App.Vector(0, 0, 146.8), App.Rotation())
sketch5.addGeometry([
    Part.LineSegment(App.Vector(31.7, 31.7, 0), App.Vector(-31.7, 31.7, 0)),  # 0
    Part.LineSegment(App.Vector(-31.7, 31.7, 0), App.Vector(-31.7, -31.7, 0)),  # 1
    Part.LineSegment(App.Vector(-31.7, -31.7, 0), App.Vector(31.7, -31.7, 0)),  # 2
    Part.LineSegment(App.Vector(31.7, -31.7, 0), App.Vector(31.7, 31.7, 0)),  # 3
    Part.LineSegment(App.Vector(9.9, -0.6, 0), App.Vector(0.6, -0.6, 0)),  # 4
    Part.LineSegment(App.Vector(0.6, -0.6, 0), App.Vector(0.6, -9.9, 0)),  # 5
    Part.ArcOfCircle(Part.Circle(App.Vector(0, 0, 0), App.Vector(0, 0, 1), 9.9), math.radians(-93.48), math.radians(-86.52)),  # 6
    Part.LineSegment(App.Vector(-0.6, -9.9, 0), App.Vector(-0.6, -0.6, 0)),  # 7
    Part.LineSegment(App.Vector(-0.6, -0.6, 0), App.Vector(-9.9, -0.6, 0)),  # 8
    Part.ArcOfCircle(Part.Circle(App.Vector(0, 0, 0), App.Vector(0, 0, 1), 9.9), math.radians(176.52), math.radians(183.48)),  # 9
    Part.LineSegment(App.Vector(-9.9, 0.6, 0), App.Vector(-0.6, 0.6, 0)),  # 10
    Part.LineSegment(App.Vector(-0.6, 0.6, 0), App.Vector(-0.6, 9.9, 0)),  # 11
    Part.ArcOfCircle(Part.Circle(App.Vector(0, 0, 0), App.Vector(0, 0, 1), 9.9), math.radians(86.52), math.radians(93.48)),  # 12
    Part.LineSegment(App.Vector(0.6, 9.9, 0), App.Vector(0.6, 0.6, 0)),  # 13
    Part.LineSegment(App.Vector(0.6, 0.6, 0), App.Vector(9.9, 0.6, 0)),  # 14
    Part.ArcOfCircle(Part.Circle(App.Vector(0, 0, 0), App.Vector(0, 0, 1), 9.9), math.radians(-3.48), math.radians(3.48)),  # 15
], False)
sketch5.addConstraint([
    Sketcher.Constraint("Coincident", 0, 2, 1, 1),
    Sketcher.Constraint("Coincident", 1, 2, 2, 1),
    Sketcher.Constraint("Coincident", 2, 2, 3, 1),
    Sketcher.Constraint("Coincident", 3, 2, 0, 1),
    Sketcher.Constraint("Coincident", 4, 2, 5, 1),
    Sketcher.Constraint("Coincident", 5, 2, 6, 2),
    Sketcher.Constraint("Coincident", 6, 1, 7, 1),
    Sketcher.Constraint("Coincident", 7, 2, 8, 1),
    Sketcher.Constraint("Coincident", 8, 2, 9, 2),
    Sketcher.Constraint("Coincident", 9, 1, 10, 1),
    Sketcher.Constraint("Coincident", 10, 2, 11, 1),
    Sketcher.Constraint("Coincident", 11, 2, 12, 2),
    Sketcher.Constraint("Coincident", 12, 1, 13, 1),
    Sketcher.Constraint("Coincident", 13, 2, 14, 1),
    Sketcher.Constraint("Coincident", 14, 2, 15, 2),
    Sketcher.Constraint("Coincident", 15, 1, 4, 1),
    Sketcher.Constraint("Horizontal", 0),
    Sketcher.Constraint("Vertical", 1),
    Sketcher.Constraint("Horizontal", 2),
    Sketcher.Constraint("Vertical", 3),
    Sketcher.Constraint("Horizontal", 4),
    Sketcher.Constraint("Vertical", 5),
    Sketcher.Constraint("Vertical", 7),
    Sketcher.Constraint("Horizontal", 8),
    Sketcher.Constraint("Horizontal", 10),
    Sketcher.Constraint("Vertical", 11),
    Sketcher.Constraint("Vertical", 13),
    Sketcher.Constraint("Horizontal", 14),
    Sketcher.Constraint("Coincident", 6, 3, -1, 1),
    Sketcher.Constraint("Coincident", 9, 3, -1, 1),
    Sketcher.Constraint("Coincident", 12, 3, -1, 1),
    Sketcher.Constraint("Coincident", 15, 3, -1, 1),
    Sketcher.Constraint("Equal", 6, 9),
    Sketcher.Constraint("Equal", 9, 12),
    Sketcher.Constraint("Equal", 12, 15),
    Sketcher.Constraint("Symmetric", 0, 2, 2, 2, -1, 1),
    Sketcher.Constraint("Symmetric", 4, 2, 10, 2, -1, 1),
    Sketcher.Constraint("Symmetric", 7, 2, 13, 2, -1, 1),
    Sketcher.Constraint("Symmetric", 4, 2, 7, 2, -2),
    Sketcher.Constraint("Equal", 2, 1),
    Sketcher.Constraint("Equal", 14, 5),
    Sketcher.Constraint("Radius", 6, Q("9.875 mm")),
    Sketcher.Constraint("DistanceX", -1, 1, 4, 2, Q("0.6 mm")),
    Sketcher.Constraint("DistanceX", 0, 2, 0, 1, Q("63.372 mm")),
])
pocket4 = doc.addObject("PartDesign::Pocket", "Pocket003")
body.addObject(pocket4)
pocket4.Profile = sketch5
pocket4.Length = 3.5

doc.recompute()
